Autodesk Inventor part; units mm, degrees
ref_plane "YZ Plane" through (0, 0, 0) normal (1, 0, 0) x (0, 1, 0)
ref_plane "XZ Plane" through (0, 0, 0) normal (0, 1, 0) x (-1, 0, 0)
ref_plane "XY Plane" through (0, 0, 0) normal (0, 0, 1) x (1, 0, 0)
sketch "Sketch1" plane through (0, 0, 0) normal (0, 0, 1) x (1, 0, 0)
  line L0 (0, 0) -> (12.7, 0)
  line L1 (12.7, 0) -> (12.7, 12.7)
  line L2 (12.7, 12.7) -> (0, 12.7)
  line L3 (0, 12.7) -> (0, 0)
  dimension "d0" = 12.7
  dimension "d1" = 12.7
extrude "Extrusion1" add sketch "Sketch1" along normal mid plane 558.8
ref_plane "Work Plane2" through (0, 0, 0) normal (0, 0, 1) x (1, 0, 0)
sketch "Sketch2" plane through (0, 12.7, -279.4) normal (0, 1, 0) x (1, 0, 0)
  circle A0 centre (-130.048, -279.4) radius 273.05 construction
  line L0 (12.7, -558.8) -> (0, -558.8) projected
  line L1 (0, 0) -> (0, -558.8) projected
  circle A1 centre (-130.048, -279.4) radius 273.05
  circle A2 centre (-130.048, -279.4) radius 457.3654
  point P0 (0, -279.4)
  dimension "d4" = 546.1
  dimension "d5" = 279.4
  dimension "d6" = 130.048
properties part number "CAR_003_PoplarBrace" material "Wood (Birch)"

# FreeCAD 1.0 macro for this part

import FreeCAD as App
import Part
import Sketcher
Q = App.Units.Quantity

doc = App.newDocument("Part")
body = doc.addObject("PartDesign::Body", "Body")

sketch1 = body.newObject("Sketcher::SketchObject", "Sketch")
sketch1.AttachmentSupport = (doc.getObject("XY_Plane"), [""])
sketch1.MapMode = "FlatFace"
sketch1.addGeometry([
    Part.LineSegment(App.Vector(0, 13, 0), App.Vector(0, 0, 0)),
    Part.LineSegment(App.Vector(0, 0, 0), App.Vector(13, 0, 0)),
    Part.LineSegment(App.Vector(13, 0, 0), App.Vector(13, 13, 0)),
    Part.LineSegment(App.Vector(13, 13, 0), App.Vector(0, 13, 0)),
], False)
sketch1.addConstraint([
    Sketcher.Constraint("Coincident", 0, 2, 1, 1),
    Sketcher.Constraint("Coincident", 1, 2, 2, 1),
    Sketcher.Constraint("Coincident", 2, 2, 3, 1),
    Sketcher.Constraint("Coincident", 3, 2, 0, 1),
    Sketcher.Constraint("Vertical", 0),
    Sketcher.Constraint("Horizontal", 1),
    Sketcher.Constraint("Vertical", 2),
    Sketcher.Constraint("Horizontal", 3),
    Sketcher.Constraint("Coincident", 0, 2, -1, 1),
    Sketcher.Constraint("Equal", 3, 0),
    Sketcher.Constraint("DistanceX", 1, 1, 1, 2, Q("0.5 in")),
])
pad1 = body.newObject("PartDesign::Pad", "Pad")
pad1.Profile = sketch1
pad1.Length = Q("22 in")
pad1.Midplane = True

doc.recompute()
